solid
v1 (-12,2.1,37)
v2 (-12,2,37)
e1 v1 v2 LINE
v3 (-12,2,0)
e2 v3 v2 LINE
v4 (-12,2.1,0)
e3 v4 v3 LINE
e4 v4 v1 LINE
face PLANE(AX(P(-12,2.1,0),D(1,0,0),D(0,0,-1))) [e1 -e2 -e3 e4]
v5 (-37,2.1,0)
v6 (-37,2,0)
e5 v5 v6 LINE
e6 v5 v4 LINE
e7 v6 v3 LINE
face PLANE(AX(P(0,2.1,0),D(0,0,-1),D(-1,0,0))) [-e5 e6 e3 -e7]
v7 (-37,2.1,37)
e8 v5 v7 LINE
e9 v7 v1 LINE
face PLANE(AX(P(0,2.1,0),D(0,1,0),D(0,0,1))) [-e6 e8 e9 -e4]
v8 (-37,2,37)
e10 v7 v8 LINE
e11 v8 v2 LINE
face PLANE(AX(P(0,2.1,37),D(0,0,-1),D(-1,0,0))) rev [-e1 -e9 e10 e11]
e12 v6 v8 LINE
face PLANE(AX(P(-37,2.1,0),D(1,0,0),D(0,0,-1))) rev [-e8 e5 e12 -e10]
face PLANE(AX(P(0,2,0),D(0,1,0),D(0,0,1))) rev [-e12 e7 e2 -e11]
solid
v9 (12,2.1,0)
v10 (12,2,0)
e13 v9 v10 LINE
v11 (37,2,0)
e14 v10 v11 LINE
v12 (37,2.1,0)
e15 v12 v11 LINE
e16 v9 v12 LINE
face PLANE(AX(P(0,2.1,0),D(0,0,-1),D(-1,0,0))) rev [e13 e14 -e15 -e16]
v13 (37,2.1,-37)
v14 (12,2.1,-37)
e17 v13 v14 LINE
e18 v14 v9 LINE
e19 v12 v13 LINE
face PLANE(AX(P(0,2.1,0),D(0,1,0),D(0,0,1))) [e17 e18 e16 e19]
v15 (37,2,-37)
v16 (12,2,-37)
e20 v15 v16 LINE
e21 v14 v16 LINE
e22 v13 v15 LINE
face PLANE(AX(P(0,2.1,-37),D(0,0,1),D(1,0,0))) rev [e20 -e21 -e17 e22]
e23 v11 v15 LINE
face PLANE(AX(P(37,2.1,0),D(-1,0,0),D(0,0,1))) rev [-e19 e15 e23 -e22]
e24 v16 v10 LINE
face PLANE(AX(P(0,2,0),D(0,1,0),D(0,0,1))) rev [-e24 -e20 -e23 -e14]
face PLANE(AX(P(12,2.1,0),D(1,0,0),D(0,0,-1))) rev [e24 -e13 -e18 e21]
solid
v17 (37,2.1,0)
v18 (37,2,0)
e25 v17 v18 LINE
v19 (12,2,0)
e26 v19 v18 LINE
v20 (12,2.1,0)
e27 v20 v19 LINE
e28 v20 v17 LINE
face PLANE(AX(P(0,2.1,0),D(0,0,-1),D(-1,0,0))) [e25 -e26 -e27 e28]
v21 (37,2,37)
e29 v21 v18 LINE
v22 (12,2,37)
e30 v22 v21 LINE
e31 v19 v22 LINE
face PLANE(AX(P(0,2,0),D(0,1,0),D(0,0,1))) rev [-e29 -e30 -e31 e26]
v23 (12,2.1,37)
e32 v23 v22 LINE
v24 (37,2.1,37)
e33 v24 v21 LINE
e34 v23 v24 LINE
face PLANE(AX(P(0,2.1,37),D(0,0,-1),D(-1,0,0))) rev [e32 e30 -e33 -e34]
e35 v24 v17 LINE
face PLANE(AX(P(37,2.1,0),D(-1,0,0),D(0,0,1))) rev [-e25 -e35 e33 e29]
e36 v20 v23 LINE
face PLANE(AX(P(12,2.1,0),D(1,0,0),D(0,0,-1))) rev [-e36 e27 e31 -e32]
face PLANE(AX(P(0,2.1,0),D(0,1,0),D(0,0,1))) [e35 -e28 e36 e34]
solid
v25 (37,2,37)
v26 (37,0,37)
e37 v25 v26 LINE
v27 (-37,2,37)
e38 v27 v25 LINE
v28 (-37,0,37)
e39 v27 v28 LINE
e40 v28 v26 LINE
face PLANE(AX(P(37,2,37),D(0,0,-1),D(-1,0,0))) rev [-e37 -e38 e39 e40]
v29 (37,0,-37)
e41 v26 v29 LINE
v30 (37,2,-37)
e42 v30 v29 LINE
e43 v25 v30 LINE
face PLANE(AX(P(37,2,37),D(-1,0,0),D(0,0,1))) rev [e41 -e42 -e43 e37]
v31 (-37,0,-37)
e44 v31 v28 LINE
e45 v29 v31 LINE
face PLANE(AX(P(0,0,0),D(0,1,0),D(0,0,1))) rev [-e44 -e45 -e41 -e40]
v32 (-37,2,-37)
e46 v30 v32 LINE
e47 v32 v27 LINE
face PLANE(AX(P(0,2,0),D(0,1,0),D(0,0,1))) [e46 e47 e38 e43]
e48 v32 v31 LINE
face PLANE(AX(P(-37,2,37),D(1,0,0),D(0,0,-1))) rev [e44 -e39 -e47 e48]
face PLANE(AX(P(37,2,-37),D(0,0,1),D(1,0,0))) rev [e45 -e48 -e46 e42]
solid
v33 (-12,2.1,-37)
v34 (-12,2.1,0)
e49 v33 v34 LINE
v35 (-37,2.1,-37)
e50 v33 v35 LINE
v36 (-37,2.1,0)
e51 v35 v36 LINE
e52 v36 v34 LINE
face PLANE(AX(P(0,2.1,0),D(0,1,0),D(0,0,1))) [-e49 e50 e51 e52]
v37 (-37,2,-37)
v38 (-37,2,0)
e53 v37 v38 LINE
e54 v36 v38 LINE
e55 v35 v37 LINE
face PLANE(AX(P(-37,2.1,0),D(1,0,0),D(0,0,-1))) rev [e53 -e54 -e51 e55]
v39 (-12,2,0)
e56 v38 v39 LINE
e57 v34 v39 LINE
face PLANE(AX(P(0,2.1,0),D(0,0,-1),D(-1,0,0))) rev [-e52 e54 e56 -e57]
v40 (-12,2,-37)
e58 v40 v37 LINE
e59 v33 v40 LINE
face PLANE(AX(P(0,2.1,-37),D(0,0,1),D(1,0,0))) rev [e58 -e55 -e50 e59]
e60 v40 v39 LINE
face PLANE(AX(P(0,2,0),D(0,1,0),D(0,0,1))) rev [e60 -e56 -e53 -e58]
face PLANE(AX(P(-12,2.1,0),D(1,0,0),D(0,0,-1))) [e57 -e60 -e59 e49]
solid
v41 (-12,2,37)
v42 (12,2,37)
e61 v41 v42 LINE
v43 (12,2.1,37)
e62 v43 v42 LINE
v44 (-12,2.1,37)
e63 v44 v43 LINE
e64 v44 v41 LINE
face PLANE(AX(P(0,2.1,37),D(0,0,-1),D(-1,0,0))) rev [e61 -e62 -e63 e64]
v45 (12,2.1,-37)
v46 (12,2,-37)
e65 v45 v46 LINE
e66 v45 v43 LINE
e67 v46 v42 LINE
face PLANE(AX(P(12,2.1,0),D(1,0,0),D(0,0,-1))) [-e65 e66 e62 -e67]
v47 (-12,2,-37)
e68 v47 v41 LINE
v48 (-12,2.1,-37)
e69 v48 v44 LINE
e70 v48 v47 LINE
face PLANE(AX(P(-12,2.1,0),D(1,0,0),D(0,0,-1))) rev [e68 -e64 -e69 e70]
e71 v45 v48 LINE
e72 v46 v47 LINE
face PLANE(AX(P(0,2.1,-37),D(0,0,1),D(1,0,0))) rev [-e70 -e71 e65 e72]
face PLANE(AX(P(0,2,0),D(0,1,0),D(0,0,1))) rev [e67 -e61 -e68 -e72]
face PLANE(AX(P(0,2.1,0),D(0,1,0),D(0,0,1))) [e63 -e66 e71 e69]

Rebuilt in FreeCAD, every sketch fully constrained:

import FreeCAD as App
import Part
import Sketcher
Q = App.Units.Quantity


def add_polygon(sketch, points):
    """Adds a closed chain of lines whose ends are joined by coincident constraints."""
    first, n = sketch.GeometryCount, len(points)
    for a, b in zip(points, points[1:] + points[:1]):
        sketch.addGeometry(Part.LineSegment(App.Vector(*a, 0), App.Vector(*b, 0)), False)
    for i in range(n):
        sketch.addConstraint(Sketcher.Constraint("Coincident", first + i, 2, first + (i + 1) % n, 1))

doc = App.newDocument("Part")
body = doc.addObject("PartDesign::Body", "Body")

# Sketch on XZ plane
sketch1 = body.newObject("Sketcher::SketchObject", "Sketch")
sketch1.AttachmentSupport = (doc.getObject("XZ_Plane"), [""])
sketch1.MapMode = "FlatFace"
add_polygon(sketch1, [(-37, -37), (-37, 37), (37, 37), (37, -37)])  # lines 0-3
sketch1.addConstraint([
    Sketcher.Constraint("Vertical", 0),
    Sketcher.Constraint("Horizontal", 1),
    Sketcher.Constraint("Vertical", 2),
    Sketcher.Constraint("Horizontal", 3),
    Sketcher.Constraint("Symmetric", 0, 2, 2, 2, -1, 1),
    Sketcher.Constraint("Equal", 3, 0),
    Sketcher.Constraint("DistanceX", 1, 1, 1, 2, Q("74 mm")),
])
pad1 = body.newObject("PartDesign::Pad", "Pad")
pad1.Profile = sketch1
pad1.Length = 2
pad1.Reversed = True
body2 = doc.addObject("PartDesign::Body", "Body001")

# Sketch on XZ plane
sketch2 = body2.newObject("Sketcher::SketchObject", "Sketch001")
sketch2.AttachmentSupport = (doc.getObject("XZ_Plane001"), [""])
sketch2.MapMode = "FlatFace"
sketch2.AttachmentOffset = App.Placement(App.Vector(0, 0, -2), App.Rotation())
add_polygon(sketch2, [(-37, -37), (-37, 0), (-12, 0), (-12, -37)])  # lines 0-3
sketch2.addConstraint([
    Sketcher.Constraint("Vertical", 0),
    Sketcher.Constraint("Horizontal", 1),
    Sketcher.Constraint("Vertical", 2),
    Sketcher.Constraint("Horizontal", 3),
    Sketcher.Constraint("PointOnObject", 0, 2, -1),
    Sketcher.Constraint("DistanceX", 1, 1, 1, 2, Q("25 mm")),
    Sketcher.Constraint("DistanceY", 0, 1, 0, 2, Q("37 mm")),
    Sketcher.Constraint("DistanceX", 0, 2, -1, 1, Q("37 mm")),
])
pad2 = body2.newObject("PartDesign::Pad", "Pad001")
pad2.Profile = sketch2
pad2.Length = 0.1
pad2.Reversed = True
body3 = doc.addObject("PartDesign::Body", "Body002")

# Sketch on XZ plane
sketch3 = body3.newObject("Sketcher::SketchObject", "Sketch002")
sketch3.AttachmentSupport = (doc.getObject("XZ_Plane002"), [""])
sketch3.MapMode = "FlatFace"
sketch3.AttachmentOffset = App.Placement(App.Vector(0, 0, -2), App.Rotation())
add_polygon(sketch3, [(12, 0), (12, 37), (37, 37), (37, 0)])  # lines 0-3
sketch3.addConstraint([
    Sketcher.Constraint("Vertical", 0),
    Sketcher.Constraint("Horizontal", 1),
    Sketcher.Constraint("Vertical", 2),
    Sketcher.Constraint("Horizontal", 3),
    Sketcher.Constraint("PointOnObject", 2, 2, -1),
    Sketcher.Constraint("DistanceX", 1, 1, 1, 2, Q("25 mm")),
    Sketcher.Constraint("DistanceY", 0, 1, 0, 2, Q("37 mm")),
    Sketcher.Constraint("DistanceX", -1, 1, 0, 2, Q("12 mm")),
])
pad3 = body3.newObject("PartDesign::Pad", "Pad002")
pad3.Profile = sketch3
pad3.Length = 0.1
pad3.Reversed = True
body4 = doc.addObject("PartDesign::Body", "Body003")

# Sketch on XZ plane
sketch4 = body4.newObject("Sketcher::SketchObject", "Sketch003")
sketch4.AttachmentSupport = (doc.getObject("XZ_Plane003"), [""])
sketch4.MapMode = "FlatFace"
sketch4.AttachmentOffset = App.Placement(App.Vector(0, 0, -2), App.Rotation())
add_polygon(sketch4, [(-37, 0), (-37, 37), (-12, 37), (-12, 0)])  # lines 0-3
sketch4.addConstraint([
    Sketcher.Constraint("Vertical", 0),
    Sketcher.Constraint("Horizontal", 1),
    Sketcher.Constraint("Vertical", 2),
    Sketcher.Constraint("Horizontal", 3),
    Sketcher.Constraint("PointOnObject", 2, 2, -1),
    Sketcher.Constraint("DistanceX", 1, 1, 1, 2, Q("25 mm")),
    Sketcher.Constraint("DistanceY", 0, 1, 0, 2, Q("37 mm")),
    Sketcher.Constraint("DistanceX", 0, 2, -1, 1, Q("37 mm")),
])
pad4 = body4.newObject("PartDesign::Pad", "Pad003")
pad4.Profile = sketch4
pad4.Length = 0.1
pad4.Reversed = True
body5 = doc.addObject("PartDesign::Body", "Body004")

# Sketch on XZ plane
sketch5 = body5.newObject("Sketcher::SketchObject", "Sketch004")
sketch5.AttachmentSupport = (doc.getObject("XZ_Plane004"), [""])
sketch5.MapMode = "FlatFace"
sketch5.AttachmentOffset = App.Placement(App.Vector(0, 0, -2), App.Rotation())
add_polygon(sketch5, [(12, -37), (-12, -37), (-12, 37), (12, 37)])  # lines 0-3
sketch5.addConstraint([
    Sketcher.Constraint("Horizontal", 0),
    Sketcher.Constraint("Vertical", 1),
    Sketcher.Constraint("Horizontal", 2),
    Sketcher.Constraint("Vertical", 3),
    Sketcher.Constraint("Symmetric", 0, 2, 2, 2, -1, 1),
    Sketcher.Constraint("DistanceX", 0, 2, 0, 1, Q("24 mm")),
    Sketcher.Constraint("DistanceY", 1, 1, 1, 2, Q("74 mm")),
])
pad5 = body5.newObject("PartDesign::Pad", "Pad004")
pad5.Profile = sketch5
pad5.Length = 0.1
pad5.Reversed = True
body6 = doc.addObject("PartDesign::Body", "Body005")

# Sketch on XZ plane
sketch6 = body6.newObject("Sketcher::SketchObject", "Sketch005")
sketch6.AttachmentSupport = (doc.getObject("XZ_Plane005"), [""])
sketch6.MapMode = "FlatFace"
sketch6.AttachmentOffset = App.Placement(App.Vector(0, 0, -2), App.Rotation())
add_polygon(sketch6, [(12, -37), (12, 0), (37, 0), (37, -37)])  # lines 0-3
sketch6.addConstraint([
    Sketcher.Constraint("Vertical", 0),
    Sketcher.Constraint("Horizontal", 1),
    Sketcher.Constraint("Vertical", 2),
    Sketcher.Constraint("Horizontal", 3),
    Sketcher.Constraint("PointOnObject", 0, 2, -1),
    Sketcher.Constraint("DistanceX", 1, 1, 1, 2, Q("25 mm")),
    Sketcher.Constraint("DistanceY", 0, 1, 0, 2, Q("37 mm")),
    Sketcher.Constraint("DistanceX", -1, 1, 0, 2, Q("12 mm")),
])
pad6 = body6.newObject("PartDesign::Pad", "Pad005")
pad6.Profile = sketch6
pad6.Length = 0.1
pad6.Reversed = True

doc.recompute()
